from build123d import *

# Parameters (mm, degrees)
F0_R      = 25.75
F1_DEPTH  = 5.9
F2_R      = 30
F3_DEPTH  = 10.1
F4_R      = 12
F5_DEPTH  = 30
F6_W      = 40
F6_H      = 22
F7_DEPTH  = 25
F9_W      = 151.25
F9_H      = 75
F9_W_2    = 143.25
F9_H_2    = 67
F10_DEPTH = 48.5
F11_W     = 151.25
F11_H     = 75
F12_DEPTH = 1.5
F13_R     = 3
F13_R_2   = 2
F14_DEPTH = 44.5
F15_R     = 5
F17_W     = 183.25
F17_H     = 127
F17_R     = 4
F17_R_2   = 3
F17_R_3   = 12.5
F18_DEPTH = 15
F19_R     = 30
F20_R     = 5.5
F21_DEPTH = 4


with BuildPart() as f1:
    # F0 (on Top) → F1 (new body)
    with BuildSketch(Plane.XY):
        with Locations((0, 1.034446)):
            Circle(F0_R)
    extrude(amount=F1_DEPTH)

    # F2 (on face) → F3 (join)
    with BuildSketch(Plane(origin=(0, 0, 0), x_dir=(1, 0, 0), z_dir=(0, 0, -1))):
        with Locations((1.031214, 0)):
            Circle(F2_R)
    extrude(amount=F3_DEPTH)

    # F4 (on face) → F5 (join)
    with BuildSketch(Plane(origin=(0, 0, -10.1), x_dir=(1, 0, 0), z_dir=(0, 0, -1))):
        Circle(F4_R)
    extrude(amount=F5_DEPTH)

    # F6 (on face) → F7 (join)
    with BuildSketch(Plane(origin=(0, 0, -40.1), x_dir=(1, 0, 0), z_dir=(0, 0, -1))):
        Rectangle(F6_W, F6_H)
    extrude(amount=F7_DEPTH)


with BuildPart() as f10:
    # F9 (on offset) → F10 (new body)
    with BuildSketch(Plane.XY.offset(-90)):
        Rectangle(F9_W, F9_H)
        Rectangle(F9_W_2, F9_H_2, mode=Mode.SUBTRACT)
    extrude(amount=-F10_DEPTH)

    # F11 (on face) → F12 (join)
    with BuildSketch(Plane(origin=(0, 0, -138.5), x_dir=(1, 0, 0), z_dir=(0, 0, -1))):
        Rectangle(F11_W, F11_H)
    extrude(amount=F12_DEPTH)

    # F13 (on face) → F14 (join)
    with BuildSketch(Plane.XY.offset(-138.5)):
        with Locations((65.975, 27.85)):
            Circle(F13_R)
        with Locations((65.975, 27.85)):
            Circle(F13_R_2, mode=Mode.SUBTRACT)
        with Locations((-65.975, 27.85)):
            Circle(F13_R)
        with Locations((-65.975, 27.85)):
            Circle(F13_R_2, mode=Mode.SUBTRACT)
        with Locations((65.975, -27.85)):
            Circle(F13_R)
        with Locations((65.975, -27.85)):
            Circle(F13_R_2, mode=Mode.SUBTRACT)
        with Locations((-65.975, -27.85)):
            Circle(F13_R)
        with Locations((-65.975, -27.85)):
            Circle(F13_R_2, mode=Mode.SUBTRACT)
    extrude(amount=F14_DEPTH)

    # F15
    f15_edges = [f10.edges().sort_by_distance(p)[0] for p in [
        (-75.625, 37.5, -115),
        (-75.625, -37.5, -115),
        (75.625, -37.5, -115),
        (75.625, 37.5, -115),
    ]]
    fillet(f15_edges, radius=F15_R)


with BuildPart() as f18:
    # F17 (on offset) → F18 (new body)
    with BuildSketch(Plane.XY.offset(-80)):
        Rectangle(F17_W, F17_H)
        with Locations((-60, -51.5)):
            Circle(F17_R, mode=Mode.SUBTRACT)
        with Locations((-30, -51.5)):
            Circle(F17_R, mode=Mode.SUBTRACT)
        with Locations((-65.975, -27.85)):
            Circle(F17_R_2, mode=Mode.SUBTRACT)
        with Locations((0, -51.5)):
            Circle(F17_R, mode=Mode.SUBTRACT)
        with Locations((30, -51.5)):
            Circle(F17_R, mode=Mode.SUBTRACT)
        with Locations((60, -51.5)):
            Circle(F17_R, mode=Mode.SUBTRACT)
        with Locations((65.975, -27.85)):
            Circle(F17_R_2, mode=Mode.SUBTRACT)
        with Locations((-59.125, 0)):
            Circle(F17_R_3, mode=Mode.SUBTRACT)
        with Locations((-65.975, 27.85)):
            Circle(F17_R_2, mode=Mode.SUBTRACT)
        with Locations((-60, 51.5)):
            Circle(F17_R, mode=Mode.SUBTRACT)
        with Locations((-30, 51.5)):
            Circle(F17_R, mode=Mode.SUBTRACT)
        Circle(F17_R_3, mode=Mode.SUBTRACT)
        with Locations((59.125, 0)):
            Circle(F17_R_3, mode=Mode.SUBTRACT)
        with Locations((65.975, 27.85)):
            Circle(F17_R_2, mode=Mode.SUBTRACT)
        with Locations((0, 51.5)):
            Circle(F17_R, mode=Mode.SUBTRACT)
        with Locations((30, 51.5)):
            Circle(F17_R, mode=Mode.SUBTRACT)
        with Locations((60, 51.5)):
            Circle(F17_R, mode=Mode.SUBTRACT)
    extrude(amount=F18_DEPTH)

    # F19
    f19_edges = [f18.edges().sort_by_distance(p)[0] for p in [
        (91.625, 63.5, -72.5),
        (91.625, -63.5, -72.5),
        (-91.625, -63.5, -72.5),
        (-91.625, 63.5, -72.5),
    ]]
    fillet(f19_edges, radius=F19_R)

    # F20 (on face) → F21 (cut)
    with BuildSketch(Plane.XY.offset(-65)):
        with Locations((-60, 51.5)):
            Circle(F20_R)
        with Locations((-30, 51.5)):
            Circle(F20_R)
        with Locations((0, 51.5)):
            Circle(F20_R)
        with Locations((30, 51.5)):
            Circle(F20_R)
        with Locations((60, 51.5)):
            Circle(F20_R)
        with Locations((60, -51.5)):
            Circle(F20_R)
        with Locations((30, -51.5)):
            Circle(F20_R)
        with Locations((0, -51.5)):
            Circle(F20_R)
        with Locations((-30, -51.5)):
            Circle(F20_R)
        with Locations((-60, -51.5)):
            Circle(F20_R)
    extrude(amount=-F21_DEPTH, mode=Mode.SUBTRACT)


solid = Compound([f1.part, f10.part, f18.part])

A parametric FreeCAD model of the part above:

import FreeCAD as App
import Part
import Sketcher
from FreeCAD import Vector


def edges_at(feature, points):
    """Names of the edges that pass closest to the given points."""
    edges = feature.Shape.Edges
    near = lambda p: min(range(len(edges)), key=lambda i: edges[i].distToShape(Part.Vertex(*p))[0])
    return sorted({f"Edge{near(p) + 1}" for p in points})


def add_polygon(sketch, points):
    """Adds a closed chain of lines whose ends are joined by coincident constraints."""
    first, n = sketch.GeometryCount, len(points)
    for a, b in zip(points, points[1:] + points[:1]):
        sketch.addGeometry(Part.LineSegment(App.Vector(*a, 0), App.Vector(*b, 0)), False)
    for i in range(n):
        sketch.addConstraint(Sketcher.Constraint("Coincident", first + i, 2, first + (i + 1) % n, 1))

doc = App.newDocument("Part")
params = doc.addObject("Spreadsheet::Sheet", "Params")
for row, (alias, value) in enumerate([
    ("sketch1_diameter", "51.5 mm"),
    ("pad1_length", "5.9 mm"),
    ("sketch2_diameter", "60 mm"),
    ("pad2_length", "10.1 mm"),
    ("sketch3_diameter", "24 mm"),
    ("pad3_length", "30 mm"),
    ("sketch4_width", "40 mm"),
    ("sketch4_height", "22 mm"),
    ("pad4_length", "25 mm"),
    ("sketch5_height", "75 mm"),
    ("sketch5_height2", "67 mm"),
    ("sketch5_width", "151.25 mm"),
    ("pad5_length", "48.5 mm"),
    ("sketch6_height", "75 mm"),
    ("sketch6_width", "151.25 mm"),
    ("pad6_length", "1.5 mm"),
    ("sketch7_diameter", "6 mm"),
    ("sketch7_diameter2", "4 mm"),
    ("pad7_length", "44.5 mm"),
    ("fillet_radius", "5 mm"),
    ("sketch8_diameter", "8 mm"),
    ("sketch8_diameter2", "6 mm"),
    ("sketch8_diameter3", "25 mm"),
    ("sketch8_height", "127 mm"),
    ("sketch8_width", "183.25 mm"),
    ("pad8_length", "15 mm"),
    ("fillet2_radius", "30 mm"),
    ("sketch9_diameter", "11 mm"),
    ("pocket1_length", "4 mm"),
], start=1):
    params.set(f"A{row}", alias)
    params.set(f"B{row}", "=" + value)
    params.setAlias(f"B{row}", alias)

body = doc.addObject("PartDesign::Body", "Body")

# Sketch on XY plane
sketch1 = body.newObject("Sketcher::SketchObject", "Sketch")
sketch1.AttachmentSupport = (doc.getObject("XY_Plane"), [""])
sketch1.MapMode = "FlatFace"
sketch1.addGeometry(Part.Circle(Vector(0, 1, 0), Vector(0, 0, 1), 26), False)
sketch1.addConstraint([
    Sketcher.Constraint("PointOnObject", 0, 3, -2),
    Sketcher.Constraint("Diameter", 0, 51.5),
    Sketcher.Constraint("DistanceY", -1, 1, 0, 3, 1.034446),
])
sketch1.setExpression("Constraints[1]", "Params.sketch1_diameter")
pad1 = body.newObject("PartDesign::Pad", "Pad")
pad1.Profile = sketch1
pad1.setExpression("Length", "Params.pad1_length")

# Sketch on XY plane
sketch2 = body.newObject("Sketcher::SketchObject", "Sketch001")
sketch2.AttachmentSupport = (doc.getObject("XY_Plane"), [""])
sketch2.MapMode = "FlatFace"
sketch2.addGeometry(Part.Circle(Vector(1, 0, 0), Vector(0, 0, 1), 30), False)
sketch2.addConstraint([
    Sketcher.Constraint("PointOnObject", 0, 3, -1),
    Sketcher.Constraint("Diameter", 0, 60.0),
    Sketcher.Constraint("DistanceX", -1, 1, 0, 3, 1.031214),
])
sketch2.setExpression("Constraints[1]", "Params.sketch2_diameter")
pad2 = body.newObject("PartDesign::Pad", "Pad001")
pad2.Profile = sketch2
pad2.setExpression("Length", "Params.pad2_length")
pad2.Reversed = True

# Sketch on XY plane
sketch3 = body.newObject("Sketcher::SketchObject", "Sketch002")
sketch3.AttachmentSupport = (doc.getObject("XY_Plane"), [""])
sketch3.MapMode = "FlatFace"
sketch3.AttachmentOffset = App.Placement(Vector(0, 0, -10.1), App.Rotation())
sketch3.addGeometry(Part.Circle(Vector(0, 0, 0), Vector(0, 0, 1), 12), False)
sketch3.addConstraint([
    Sketcher.Constraint("Coincident", 0, 3, -1, 1),
    Sketcher.Constraint("Diameter", 0, 24.0),
])
sketch3.setExpression("Constraints[1]", "Params.sketch3_diameter")
pad3 = body.newObject("PartDesign::Pad", "Pad002")
pad3.Profile = sketch3
pad3.setExpression("Length", "Params.pad3_length")
pad3.Reversed = True

# Sketch on XY plane
sketch4 = body.newObject("Sketcher::SketchObject", "Sketch003")
sketch4.AttachmentSupport = (doc.getObject("XY_Plane"), [""])
sketch4.MapMode = "FlatFace"
sketch4.AttachmentOffset = App.Placement(Vector(0, 0, -40.1), App.Rotation())
add_polygon(sketch4, [(-20, -11), (-20, 11), (20, 11), (20, -11)])  # lines 0-3
sketch4.addConstraint([
    Sketcher.Constraint("Vertical", 0),
    Sketcher.Constraint("Horizontal", 1),
    Sketcher.Constraint("Vertical", 2),
    Sketcher.Constraint("Horizontal", 3),
    Sketcher.Constraint("Symmetric", 0, 2, 2, 2, -1, 1),
    Sketcher.Constraint("DistanceX", 1, 1, 1, 2, 40.0),
    Sketcher.Constraint("DistanceY", 0, 1, 0, 2, 22.0),
])
sketch4.setExpression("Constraints[9]", "Params.sketch4_width")
sketch4.setExpression("Constraints[10]", "Params.sketch4_height")
pad4 = body.newObject("PartDesign::Pad", "Pad003")
pad4.Profile = sketch4
pad4.setExpression("Length", "Params.pad4_length")
pad4.Reversed = True
body2 = doc.addObject("PartDesign::Body", "Body001")

# Sketch on XY plane
sketch5 = body2.newObject("Sketcher::SketchObject", "Sketch004")
sketch5.AttachmentSupport = (doc.getObject("XY_Plane001"), [""])
sketch5.MapMode = "FlatFace"
sketch5.AttachmentOffset = App.Placement(Vector(0, 0, -90), App.Rotation())
add_polygon(sketch5, [(-76, 38), (-76, -38), (76, -38), (76, 38)])  # lines 0-3
add_polygon(sketch5, [(72, -34), (-72, -34), (-72, 34), (72, 34)])  # lines 4-7
sketch5.addConstraint([
    Sketcher.Constraint("Vertical", 0),
    Sketcher.Constraint("Horizontal", 1),
    Sketcher.Constraint("Vertical", 2),
    Sketcher.Constraint("Horizontal", 3),
    Sketcher.Constraint("Horizontal", 4),
    Sketcher.Constraint("Vertical", 5),
    Sketcher.Constraint("Horizontal", 6),
    Sketcher.Constraint("Vertical", 7),
    Sketcher.Constraint("Symmetric", 0, 2, 2, 2, -1, 1),
    Sketcher.Constraint("Symmetric", 4, 2, 6, 2, -1, 1),
    Sketcher.Constraint("DistanceY", 0, 2, 0, 1, 75.0),
    Sketcher.Constraint("DistanceY", 5, 1, 5, 2, 67.0),
    Sketcher.Constraint("DistanceX", 0, 2, 4, 2, 4.0),
    Sketcher.Constraint("DistanceX", 1, 1, 1, 2, 151.25),
])
sketch5.setExpression("Constraints[18]", "Params.sketch5_height")
sketch5.setExpression("Constraints[19]", "Params.sketch5_height2")
sketch5.setExpression("Constraints[21]", "Params.sketch5_width")
pad5 = body2.newObject("PartDesign::Pad", "Pad004")
pad5.Profile = sketch5
pad5.setExpression("Length", "Params.pad5_length")
pad5.Reversed = True

# Sketch on XY plane
sketch6 = body2.newObject("Sketcher::SketchObject", "Sketch005")
sketch6.AttachmentSupport = (doc.getObject("XY_Plane001"), [""])
sketch6.MapMode = "FlatFace"
sketch6.AttachmentOffset = App.Placement(Vector(0, 0, -138.5), App.Rotation())
add_polygon(sketch6, [(-76, -38), (-76, 38), (76, 38), (76, -38)])  # lines 0-3
sketch6.addConstraint([
    Sketcher.Constraint("Vertical", 0),
    Sketcher.Constraint("Horizontal", 1),
    Sketcher.Constraint("Vertical", 2),
    Sketcher.Constraint("Horizontal", 3),
    Sketcher.Constraint("Symmetric", 0, 2, 2, 2, -1, 1),
    Sketcher.Constraint("DistanceY", 0, 1, 0, 2, 75.0),
    Sketcher.Constraint("DistanceX", 1, 1, 1, 2, 151.25),
])
sketch6.setExpression("Constraints[9]", "Params.sketch6_height")
sketch6.setExpression("Constraints[10]", "Params.sketch6_width")
pad6 = body2.newObject("PartDesign::Pad", "Pad005")
pad6.Profile = sketch6
pad6.setExpression("Length", "Params.pad6_length")
pad6.Reversed = True

# Sketch on XY plane
sketch7 = body2.newObject("Sketcher::SketchObject", "Sketch006")
sketch7.AttachmentSupport = (doc.getObject("XY_Plane001"), [""])
sketch7.MapMode = "FlatFace"
sketch7.AttachmentOffset = App.Placement(Vector(0, 0, -138.5), App.Rotation())
sketch7.addGeometry([
    Part.Circle(Vector(66, 27.9, 0), Vector(0, 0, 1), 3),  # 0
    Part.Circle(Vector(66, 27.9, 0), Vector(0, 0, 1), 2),  # 1
    Part.Circle(Vector(-66, 27.9, 0), Vector(0, 0, 1), 3),  # 2
    Part.Circle(Vector(-66, 27.9, 0), Vector(0, 0, 1), 2),  # 3
    Part.Circle(Vector(66, -27.9, 0), Vector(0, 0, 1), 3),  # 4
    Part.Circle(Vector(66, -27.9, 0), Vector(0, 0, 1), 2),  # 5
    Part.Circle(Vector(-66, -27.9, 0), Vector(0, 0, 1), 3),  # 6
    Part.Circle(Vector(-66, -27.9, 0), Vector(0, 0, 1), 2),  # 7
], False)
sketch7.addConstraint([
    Sketcher.Constraint("Coincident", 1, 3, 0, 3),
    Sketcher.Constraint("Coincident", 3, 3, 2, 3),
    Sketcher.Constraint("Coincident", 5, 3, 4, 3),
    Sketcher.Constraint("Coincident", 7, 3, 6, 3),
    Sketcher.Constraint("Equal", 0, 2),
    Sketcher.Constraint("Equal", 1, 3),
    Sketcher.Constraint("Equal", 2, 4),
    Sketcher.Constraint("Equal", 3, 5),
    Sketcher.Constraint("Equal", 4, 6),
    Sketcher.Constraint("Equal", 5, 7),
    Sketcher.Constraint("Symmetric", 2, 3, 4, 3, -1, 1),
    Sketcher.Constraint("Symmetric", 0, 3, 6, 3, -1, 1),
    Sketcher.Constraint("Symmetric", 0, 3, 2, 3, -2),
    Sketcher.Constraint("Diameter", 0, 6.0),
    Sketcher.Constraint("Diameter", 1, 4.0),
    Sketcher.Constraint("DistanceY", 4, 3, 0, 3, 55.7),
    Sketcher.Constraint("DistanceX", 2, 3, 0, 3, 131.95),
])
sketch7.setExpression("Constraints[13]", "Params.sketch7_diameter")
sketch7.setExpression("Constraints[14]", "Params.sketch7_diameter2")
pad7 = body2.newObject("PartDesign::Pad", "Pad006")
pad7.Profile = sketch7
pad7.setExpression("Length", "Params.pad7_length")
doc.recompute()

fillet = body2.newObject("PartDesign::Fillet", "Fillet")
fillet.Base = (pad7, edges_at(pad7, [
    (-75.625, 37.5, -115),
    (-75.625, -37.5, -115),
    (75.625, -37.5, -115),
    (75.625, 37.5, -115),
]))
fillet.setExpression("Radius", "Params.fillet_radius")
body3 = doc.addObject("PartDesign::Body", "Body002")

# Sketch on XY plane
sketch8 = body3.newObject("Sketcher::SketchObject", "Sketch007")
sketch8.AttachmentSupport = (doc.getObject("XY_Plane002"), [""])
sketch8.MapMode = "FlatFace"
sketch8.AttachmentOffset = App.Placement(Vector(0, 0, -80), App.Rotation())
add_polygon(sketch8, [(-91.6, 63.5), (-91.6, -63.5), (91.6, -63.5), (91.6, 63.5)])  # lines 0-3
sketch8.addGeometry(Part.Circle(Vector(-60, -51.5, 0), Vector(0, 0, 1), 4), False)  # 4
sketch8.addGeometry(Part.Circle(Vector(-66, -27.9, 0), Vector(0, 0, 1), 3), False)  # 5
sketch8.addGeometry(Part.Circle(Vector(-30, -51.5, 0), Vector(0, 0, 1), 4), False)  # 6
sketch8.addGeometry(Part.Circle(Vector(0, -51.5, 0), Vector(0, 0, 1), 4), False)  # 7
sketch8.addGeometry(Part.Circle(Vector(30, -51.5, 0), Vector(0, 0, 1), 4), False)  # 8
sketch8.addGeometry(Part.Circle(Vector(60, -51.5, 0), Vector(0, 0, 1), 4), False)  # 9
sketch8.addGeometry(Part.Circle(Vector(66, -27.9, 0), Vector(0, 0, 1), 3), False)  # 10
sketch8.addGeometry(Part.Circle(Vector(-59.1, 0, 0), Vector(0, 0, 1), 12.5), False)  # 11
sketch8.addGeometry(Part.Circle(Vector(-66, 27.9, 0), Vector(0, 0, 1), 3), False)  # 12
sketch8.addGeometry(Part.Circle(Vector(-60, 51.5, 0), Vector(0, 0, 1), 4), False)  # 13
sketch8.addGeometry(Part.Circle(Vector(-30, 51.5, 0), Vector(0, 0, 1), 4), False)  # 14
sketch8.addGeometry(Part.Circle(Vector(0, 0, 0), Vector(0, 0, 1), 12.5), False)  # 15
sketch8.addGeometry(Part.Circle(Vector(59.1, 0, 0), Vector(0, 0, 1), 12.5), False)  # 16
sketch8.addGeometry(Part.Circle(Vector(0, 51.5, 0), Vector(0, 0, 1), 4), False)  # 17
sketch8.addGeometry(Part.Circle(Vector(30, 51.5, 0), Vector(0, 0, 1), 4), False)  # 18
sketch8.addGeometry(Part.Circle(Vector(66, 27.9, 0), Vector(0, 0, 1), 3), False)  # 19
sketch8.addGeometry(Part.Circle(Vector(60, 51.5, 0), Vector(0, 0, 1), 4), False)  # 20
sketch8.addConstraint([
    Sketcher.Constraint("Vertical", 0),
    Sketcher.Constraint("Horizontal", 1),
    Sketcher.Constraint("Vertical", 2),
    Sketcher.Constraint("Horizontal", 3),
    Sketcher.Constraint("Coincident", 15, 3, -1, 1),
    Sketcher.Constraint("Equal", 4, 6),
    Sketcher.Constraint("Equal", 6, 7),
    Sketcher.Constraint("Equal", 7, 8),
    Sketcher.Constraint("Equal", 8, 9),
    Sketcher.Constraint("Equal", 5, 10),
    Sketcher.Constraint("Equal", 10, 12),
    Sketcher.Constraint("Equal", 9, 13),
    Sketcher.Constraint("Equal", 13, 14),
    Sketcher.Constraint("Equal", 11, 15),
    Sketcher.Constraint("Equal", 15, 16),
    Sketcher.Constraint("Equal", 14, 17),
    Sketcher.Constraint("Equal", 17, 18),
    Sketcher.Constraint("Equal", 12, 19),
    Sketcher.Constraint("Equal", 18, 20),
    Sketcher.Constraint("Symmetric", 10, 3, 12, 3, -1, 1),
    Sketcher.Constraint("Symmetric", 9, 3, 13, 3, -1, 1),
    Sketcher.Constraint("Symmetric", 8, 3, 14, 3, -1, 1),
    Sketcher.Constraint("Symmetric", 11, 3, 16, 3, -1, 1),
    Sketcher.Constraint("Symmetric", 7, 3, 17, 3, -1, 1),
    Sketcher.Constraint("Symmetric", 6, 3, 18, 3, -1, 1),
    Sketcher.Constraint("Symmetric", 5, 3, 19, 3, -1, 1),
    Sketcher.Constraint("Symmetric", 4, 3, 20, 3, -1, 1),
    Sketcher.Constraint("Symmetric", 0, 2, 2, 2, -1, 1),
    Sketcher.Constraint("Symmetric", 6, 3, 8, 3, -2),
    Sketcher.Constraint("Symmetric", 4, 3, 9, 3, -2),
    Sketcher.Constraint("Symmetric", 5, 3, 10, 3, -2),
    Sketcher.Constraint("PointOnObject", 7, 3, -2),
    Sketcher.Constraint("PointOnObject", 11, 3, -1),
    Sketcher.Constraint("Horizontal", 4, 3, 6, 3),
    Sketcher.Constraint("Horizontal", 6, 3, 7, 3),
    Sketcher.Constraint("Diameter", 4, 8.0),
    Sketcher.Constraint("Diameter", 5, 6.0),
    Sketcher.Constraint("Diameter", 11, 25.0),
    Sketcher.Constraint("DistanceY", 0, 2, 0, 1, 127.0),
    Sketcher.Constraint("DistanceX", 4, 3, -1, 1, 60.0),
    Sketcher.Constraint("DistanceX", 6, 3, -1, 1, 30.0),
    Sketcher.Constraint("DistanceY", 4, 3, 13, 3, 103.0),
    Sketcher.Constraint("DistanceX", 1, 1, 1, 2, 183.25),
    Sketcher.Constraint("DistanceY", 5, 3, 12, 3, 55.7),
    Sketcher.Constraint("DistanceX", 0, 2, 11, 3, 32.5),
    Sketcher.Constraint("DistanceX", 5, 3, 11, 3, 6.85),
])
sketch8.setExpression("Constraints[39]", "Params.sketch8_diameter")
sketch8.setExpression("Constraints[40]", "Params.sketch8_diameter2")
sketch8.setExpression("Constraints[41]", "Params.sketch8_diameter3")
sketch8.setExpression("Constraints[42]", "Params.sketch8_height")
sketch8.setExpression("Constraints[46]", "Params.sketch8_width")
pad8 = body3.newObject("PartDesign::Pad", "Pad007")
pad8.Profile = sketch8
pad8.setExpression("Length", "Params.pad8_length")
doc.recompute()

fillet2 = body3.newObject("PartDesign::Fillet", "Fillet001")
fillet2.Base = (pad8, edges_at(pad8, [
    (91.625, 63.5, -72.5),
    (91.625, -63.5, -72.5),
    (-91.625, -63.5, -72.5),
    (-91.625, 63.5, -72.5),
]))
fillet2.setExpression("Radius", "Params.fillet2_radius")

# Sketch on XY plane
sketch9 = body3.newObject("Sketcher::SketchObject", "Sketch008")
sketch9.AttachmentSupport = (doc.getObject("XY_Plane002"), [""])
sketch9.MapMode = "FlatFace"
sketch9.AttachmentOffset = App.Placement(Vector(0, 0, -65), App.Rotation())
sketch9.addGeometry([
    Part.Circle(Vector(-60, 52, 0), Vector(0, 0, 1), 6),  # 0
    Part.Circle(Vector(-30, 52, 0), Vector(0, 0, 1), 6),  # 1
    Part.Circle(Vector(0, 52, 0), Vector(0, 0, 1), 6),  # 2
    Part.Circle(Vector(30, 52, 0), Vector(0, 0, 1), 6),  # 3
    Part.Circle(Vector(60, 52, 0), Vector(0, 0, 1), 6),  # 4
    Part.Circle(Vector(60, -52, 0), Vector(0, 0, 1), 6),  # 5
    Part.Circle(Vector(30, -52, 0), Vector(0, 0, 1), 6),  # 6
    Part.Circle(Vector(0, -52, 0), Vector(0, 0, 1), 6),  # 7
    Part.Circle(Vector(-30, -52, 0), Vector(0, 0, 1), 6),  # 8
    Part.Circle(Vector(-60, -52, 0), Vector(0, 0, 1), 6),  # 9
], False)
sketch9.addConstraint([
    Sketcher.Constraint("Equal", 0, 1),
    Sketcher.Constraint("Equal", 1, 2),
    Sketcher.Constraint("Equal", 2, 3),
    Sketcher.Constraint("Equal", 3, 4),
    Sketcher.Constraint("Equal", 4, 5),
    Sketcher.Constraint("Equal", 5, 6),
    Sketcher.Constraint("Equal", 6, 7),
    Sketcher.Constraint("Equal", 7, 8),
    Sketcher.Constraint("Equal", 8, 9),
    Sketcher.Constraint("Symmetric", 0, 3, 5, 3, -1, 1),
    Sketcher.Constraint("Symmetric", 1, 3, 6, 3, -1, 1),
    Sketcher.Constraint("Symmetric", 2, 3, 7, 3, -1, 1),
    Sketcher.Constraint("Symmetric", 3, 3, 8, 3, -1, 1),
    Sketcher.Constraint("Symmetric", 4, 3, 9, 3, -1, 1),
    Sketcher.Constraint("Symmetric", 1, 3, 3, 3, -2),
    Sketcher.Constraint("Symmetric", 0, 3, 4, 3, -2),
    Sketcher.Constraint("PointOnObject", 2, 3, -2),
    Sketcher.Constraint("Horizontal", 0, 3, 1, 3),
    Sketcher.Constraint("Horizontal", 1, 3, 2, 3),
    Sketcher.Constraint("Diameter", 0, 11.0),
    Sketcher.Constraint("DistanceX", 0, 3, -1, 1, 60.0),
    Sketcher.Constraint("DistanceX", 1, 3, -1, 1, 30.0),
    Sketcher.Constraint("DistanceY", 5, 3, 4, 3, 103.0),
])
sketch9.setExpression("Constraints[19]", "Params.sketch9_diameter")
pocket1 = body3.newObject("PartDesign::Pocket", "Pocket")
pocket1.Profile = sketch9
pocket1.setExpression("Length", "Params.pocket1_length")

doc.recompute()
